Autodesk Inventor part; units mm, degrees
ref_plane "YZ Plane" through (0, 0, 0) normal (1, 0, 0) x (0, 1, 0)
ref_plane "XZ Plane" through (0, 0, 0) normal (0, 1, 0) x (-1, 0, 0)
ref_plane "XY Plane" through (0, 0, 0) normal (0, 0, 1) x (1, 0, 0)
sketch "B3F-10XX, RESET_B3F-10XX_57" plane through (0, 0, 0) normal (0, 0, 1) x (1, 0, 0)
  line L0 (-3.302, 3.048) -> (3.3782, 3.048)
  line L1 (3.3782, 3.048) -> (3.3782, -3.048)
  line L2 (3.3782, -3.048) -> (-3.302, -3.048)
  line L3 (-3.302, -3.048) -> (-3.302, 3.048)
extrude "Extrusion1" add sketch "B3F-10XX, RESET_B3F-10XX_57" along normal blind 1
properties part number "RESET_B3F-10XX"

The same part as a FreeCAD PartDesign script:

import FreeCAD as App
import Part
import Sketcher
from FreeCAD import Vector
Q = App.Units.Quantity


def add_polygon(sketch, points):
    """Adds a closed chain of lines whose ends are joined by coincident constraints."""
    first, n = sketch.GeometryCount, len(points)
    for a, b in zip(points, points[1:] + points[:1]):
        sketch.addGeometry(Part.LineSegment(App.Vector(*a, 0), App.Vector(*b, 0)), False)
    for i in range(n):
        sketch.addConstraint(Sketcher.Constraint("Coincident", first + i, 2, first + (i + 1) % n, 1))

doc = App.newDocument("Part")
body = doc.addObject("PartDesign::Body", "Body")

# Sketch on XY plane
sketch1 = body.newObject("Sketcher::SketchObject", "Sketch")
sketch1.AttachmentSupport = (doc.getObject("XY_Plane"), [""])
sketch1.MapMode = "FlatFace"
add_polygon(sketch1, [(3.3782, 3.048), (-3.302, 3.048), (-3.302, -3.048), (3.3782, -3.048)])  # lines 0-3
sketch1.addConstraint([
    Sketcher.Constraint("Horizontal", 0),
    Sketcher.Constraint("Vertical", 1),
    Sketcher.Constraint("Horizontal", 2),
    Sketcher.Constraint("Vertical", 3),
    Sketcher.Constraint("DistanceY", 1, 2, 1, 1, Q("0.24 in")),
    Sketcher.Constraint("DistanceX", 0, 2, 0, 1, Q("0.263 in")),
    Sketcher.Constraint("DistanceX", 0, 2, -1, 1, Q("0.13 in")),
    Sketcher.Constraint("DistanceY", -1, 1, 0, 2, Q("0.12 in")),
])
pad1 = body.newObject("PartDesign::Pad", "Pad")
pad1.Profile = sketch1
pad1.Length = 1

doc.recompute()
